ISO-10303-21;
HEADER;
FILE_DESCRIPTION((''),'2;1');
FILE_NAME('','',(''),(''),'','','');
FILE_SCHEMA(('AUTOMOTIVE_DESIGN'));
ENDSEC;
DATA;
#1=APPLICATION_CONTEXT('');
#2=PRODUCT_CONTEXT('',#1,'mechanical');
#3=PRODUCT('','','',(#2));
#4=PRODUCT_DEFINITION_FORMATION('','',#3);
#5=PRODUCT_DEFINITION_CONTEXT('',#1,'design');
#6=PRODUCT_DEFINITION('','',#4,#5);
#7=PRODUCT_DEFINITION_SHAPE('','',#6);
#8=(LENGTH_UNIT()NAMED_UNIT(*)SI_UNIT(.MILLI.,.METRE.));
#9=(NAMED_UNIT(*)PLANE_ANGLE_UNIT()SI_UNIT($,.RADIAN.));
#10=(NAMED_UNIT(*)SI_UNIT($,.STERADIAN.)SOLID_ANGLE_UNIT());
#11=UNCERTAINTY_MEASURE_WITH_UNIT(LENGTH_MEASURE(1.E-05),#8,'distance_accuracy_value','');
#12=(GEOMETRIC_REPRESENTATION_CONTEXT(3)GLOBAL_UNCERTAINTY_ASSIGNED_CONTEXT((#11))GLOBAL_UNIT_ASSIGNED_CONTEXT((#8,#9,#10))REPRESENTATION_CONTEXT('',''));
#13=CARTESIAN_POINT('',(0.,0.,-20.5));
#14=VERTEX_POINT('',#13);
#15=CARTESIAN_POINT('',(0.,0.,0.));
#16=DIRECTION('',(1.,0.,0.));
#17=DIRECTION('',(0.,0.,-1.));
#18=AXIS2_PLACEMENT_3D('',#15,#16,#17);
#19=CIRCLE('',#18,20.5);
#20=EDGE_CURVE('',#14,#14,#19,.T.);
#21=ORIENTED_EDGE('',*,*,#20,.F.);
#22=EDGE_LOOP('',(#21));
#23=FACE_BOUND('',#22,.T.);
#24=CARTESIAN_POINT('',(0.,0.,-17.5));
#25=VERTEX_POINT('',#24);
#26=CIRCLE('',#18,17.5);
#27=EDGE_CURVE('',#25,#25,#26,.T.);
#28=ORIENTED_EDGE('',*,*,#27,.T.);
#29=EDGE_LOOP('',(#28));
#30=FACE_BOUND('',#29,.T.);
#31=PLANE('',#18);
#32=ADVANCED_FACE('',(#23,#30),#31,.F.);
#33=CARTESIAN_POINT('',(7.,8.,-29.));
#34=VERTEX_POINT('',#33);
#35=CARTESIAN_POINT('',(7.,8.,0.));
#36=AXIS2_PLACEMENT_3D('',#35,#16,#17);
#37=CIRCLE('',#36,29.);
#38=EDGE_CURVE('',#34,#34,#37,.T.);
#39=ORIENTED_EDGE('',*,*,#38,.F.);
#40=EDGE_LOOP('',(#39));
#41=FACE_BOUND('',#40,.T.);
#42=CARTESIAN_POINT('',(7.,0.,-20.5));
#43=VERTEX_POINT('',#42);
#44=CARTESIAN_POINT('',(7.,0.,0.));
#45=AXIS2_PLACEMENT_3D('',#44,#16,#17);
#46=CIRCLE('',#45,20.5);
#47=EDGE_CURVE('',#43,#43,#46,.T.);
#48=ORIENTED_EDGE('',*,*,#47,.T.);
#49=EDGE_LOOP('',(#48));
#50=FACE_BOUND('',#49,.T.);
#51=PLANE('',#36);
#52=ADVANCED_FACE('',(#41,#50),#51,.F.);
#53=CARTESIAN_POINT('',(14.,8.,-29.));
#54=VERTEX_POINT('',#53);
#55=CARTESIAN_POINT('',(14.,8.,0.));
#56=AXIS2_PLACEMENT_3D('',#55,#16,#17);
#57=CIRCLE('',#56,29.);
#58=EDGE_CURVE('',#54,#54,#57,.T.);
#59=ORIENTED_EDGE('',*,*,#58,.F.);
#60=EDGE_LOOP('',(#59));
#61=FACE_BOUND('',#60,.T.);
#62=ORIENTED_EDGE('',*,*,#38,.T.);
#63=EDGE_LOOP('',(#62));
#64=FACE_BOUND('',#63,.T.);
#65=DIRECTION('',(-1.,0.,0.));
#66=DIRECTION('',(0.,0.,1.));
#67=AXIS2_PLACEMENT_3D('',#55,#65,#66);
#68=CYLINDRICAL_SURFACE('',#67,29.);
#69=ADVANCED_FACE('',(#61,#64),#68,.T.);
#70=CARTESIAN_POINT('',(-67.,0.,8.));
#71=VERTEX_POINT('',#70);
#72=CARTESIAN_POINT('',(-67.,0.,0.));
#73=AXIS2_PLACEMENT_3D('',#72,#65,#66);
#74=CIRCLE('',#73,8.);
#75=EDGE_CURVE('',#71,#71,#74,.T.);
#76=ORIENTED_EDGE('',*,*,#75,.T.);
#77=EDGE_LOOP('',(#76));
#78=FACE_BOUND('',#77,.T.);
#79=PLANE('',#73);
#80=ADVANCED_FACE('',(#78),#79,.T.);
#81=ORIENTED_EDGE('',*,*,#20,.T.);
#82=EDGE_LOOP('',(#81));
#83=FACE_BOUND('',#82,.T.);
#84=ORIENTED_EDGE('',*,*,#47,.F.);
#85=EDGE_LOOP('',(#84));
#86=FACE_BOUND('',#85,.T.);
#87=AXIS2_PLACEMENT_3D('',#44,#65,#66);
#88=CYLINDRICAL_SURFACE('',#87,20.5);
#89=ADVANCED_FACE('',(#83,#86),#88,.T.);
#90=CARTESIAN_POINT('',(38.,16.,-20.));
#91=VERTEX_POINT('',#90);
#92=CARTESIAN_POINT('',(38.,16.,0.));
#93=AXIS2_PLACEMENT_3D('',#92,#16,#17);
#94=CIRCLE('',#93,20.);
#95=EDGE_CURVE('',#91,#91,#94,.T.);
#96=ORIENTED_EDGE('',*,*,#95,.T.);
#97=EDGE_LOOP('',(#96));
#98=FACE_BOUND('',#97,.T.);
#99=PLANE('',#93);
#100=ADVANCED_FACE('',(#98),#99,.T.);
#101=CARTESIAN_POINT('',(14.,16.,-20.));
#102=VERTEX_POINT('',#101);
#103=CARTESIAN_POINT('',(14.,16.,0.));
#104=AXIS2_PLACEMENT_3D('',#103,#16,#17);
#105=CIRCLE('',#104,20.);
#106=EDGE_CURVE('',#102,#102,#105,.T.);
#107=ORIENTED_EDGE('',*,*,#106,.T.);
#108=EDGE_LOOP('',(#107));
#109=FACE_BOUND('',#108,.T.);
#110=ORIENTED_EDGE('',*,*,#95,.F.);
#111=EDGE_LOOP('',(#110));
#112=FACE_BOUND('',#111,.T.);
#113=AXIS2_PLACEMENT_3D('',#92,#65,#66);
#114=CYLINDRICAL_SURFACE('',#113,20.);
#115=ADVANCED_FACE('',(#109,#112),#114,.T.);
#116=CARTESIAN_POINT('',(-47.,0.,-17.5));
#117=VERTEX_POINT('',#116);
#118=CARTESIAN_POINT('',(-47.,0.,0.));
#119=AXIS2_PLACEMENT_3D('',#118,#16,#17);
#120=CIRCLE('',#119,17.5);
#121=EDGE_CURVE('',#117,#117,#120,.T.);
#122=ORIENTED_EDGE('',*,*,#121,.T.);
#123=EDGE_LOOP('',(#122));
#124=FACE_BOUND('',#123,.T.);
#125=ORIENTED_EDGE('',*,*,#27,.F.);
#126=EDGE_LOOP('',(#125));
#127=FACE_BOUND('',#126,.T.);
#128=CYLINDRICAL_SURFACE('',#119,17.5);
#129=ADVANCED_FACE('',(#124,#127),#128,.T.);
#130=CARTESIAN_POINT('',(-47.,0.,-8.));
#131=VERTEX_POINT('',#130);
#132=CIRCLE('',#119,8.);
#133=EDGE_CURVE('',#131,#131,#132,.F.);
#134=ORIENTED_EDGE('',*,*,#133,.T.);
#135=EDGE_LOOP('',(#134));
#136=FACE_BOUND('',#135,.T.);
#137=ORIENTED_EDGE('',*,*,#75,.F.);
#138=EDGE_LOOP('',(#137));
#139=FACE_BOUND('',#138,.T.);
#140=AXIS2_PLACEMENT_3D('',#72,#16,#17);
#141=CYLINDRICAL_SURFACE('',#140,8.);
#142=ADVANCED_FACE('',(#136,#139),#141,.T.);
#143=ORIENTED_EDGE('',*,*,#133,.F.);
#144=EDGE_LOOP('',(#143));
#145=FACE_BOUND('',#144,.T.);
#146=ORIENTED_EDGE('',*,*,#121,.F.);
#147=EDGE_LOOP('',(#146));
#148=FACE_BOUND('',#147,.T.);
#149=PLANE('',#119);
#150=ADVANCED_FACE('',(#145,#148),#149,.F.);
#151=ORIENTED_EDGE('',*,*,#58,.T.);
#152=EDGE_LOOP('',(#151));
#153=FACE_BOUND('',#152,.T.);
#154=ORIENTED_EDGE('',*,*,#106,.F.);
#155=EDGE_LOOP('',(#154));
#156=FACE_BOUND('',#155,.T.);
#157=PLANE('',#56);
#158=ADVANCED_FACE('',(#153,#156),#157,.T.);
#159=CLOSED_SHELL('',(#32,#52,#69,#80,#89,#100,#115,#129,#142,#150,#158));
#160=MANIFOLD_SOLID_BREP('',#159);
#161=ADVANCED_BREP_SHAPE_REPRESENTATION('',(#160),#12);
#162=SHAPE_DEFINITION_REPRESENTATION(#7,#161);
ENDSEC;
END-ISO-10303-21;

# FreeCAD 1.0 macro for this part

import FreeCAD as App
import Part
import Sketcher

doc = App.newDocument("Part")
params = doc.addObject("Spreadsheet::Sheet", "Params")
for row, (alias, value) in enumerate([
    ("sketch1_diameter", "35 mm"),
    ("pad1_length", "47 mm"),
    ("sketch2_diameter", "16 mm"),
    ("pad2_length", "20 mm"),
    ("sketch3_diameter", "41 mm"),
    ("pad3_length", "7 mm"),
    ("sketch4_diameter", "58 mm"),
    ("pad4_length", "7 mm"),
    ("sketch5_diameter", "40 mm"),
    ("pad5_length", "24 mm"),
], start=1):
    params.set(f"A{row}", alias)
    params.set(f"B{row}", "=" + value)
    params.setAlias(f"B{row}", alias)

body = doc.addObject("PartDesign::Body", "Body")

# Sketch on YZ plane
sketch1 = body.newObject("Sketcher::SketchObject", "Sketch")
sketch1.AttachmentSupport = (doc.getObject("YZ_Plane"), [""])
sketch1.MapMode = "FlatFace"
sketch1.addGeometry(Part.Circle(App.Vector(0, 0, 0), App.Vector(0, 0, 1), 18), False)
sketch1.addConstraint(Sketcher.Constraint("Coincident", 0, 3, -1, 1))
sketch1.addConstraint(Sketcher.Constraint("Diameter", 0, 35.0))
sketch1.setExpression("Constraints[1]", "Params.sketch1_diameter")
pad1 = body.newObject("PartDesign::Pad", "Pad")
pad1.Profile = sketch1
pad1.setExpression("Length", "Params.pad1_length")
pad1.Reversed = True

# Sketch on YZ plane
sketch2 = body.newObject("Sketcher::SketchObject", "Sketch001")
sketch2.AttachmentSupport = (doc.getObject("YZ_Plane"), [""])
sketch2.MapMode = "FlatFace"
sketch2.AttachmentOffset = App.Placement(App.Vector(0, 0, -47), App.Rotation())
sketch2.addGeometry(Part.Circle(App.Vector(0, 0, 0), App.Vector(0, 0, 1), 8), False)
sketch2.addConstraint(Sketcher.Constraint("Coincident", 0, 3, -1, 1))
sketch2.addConstraint(Sketcher.Constraint("Diameter", 0, 16.0))
sketch2.setExpression("Constraints[1]", "Params.sketch2_diameter")
pad2 = body.newObject("PartDesign::Pad", "Pad001")
pad2.Profile = sketch2
pad2.setExpression("Length", "Params.pad2_length")
pad2.Reversed = True

# Sketch on YZ plane
sketch3 = body.newObject("Sketcher::SketchObject", "Sketch002")
sketch3.AttachmentSupport = (doc.getObject("YZ_Plane"), [""])
sketch3.MapMode = "FlatFace"
sketch3.addGeometry(Part.Circle(App.Vector(0, 0, 0), App.Vector(0, 0, 1), 20), False)
sketch3.addConstraint(Sketcher.Constraint("Coincident", 0, 3, -1, 1))
sketch3.addConstraint(Sketcher.Constraint("Diameter", 0, 41.0))
sketch3.setExpression("Constraints[1]", "Params.sketch3_diameter")
pad3 = body.newObject("PartDesign::Pad", "Pad002")
pad3.Profile = sketch3
pad3.setExpression("Length", "Params.pad3_length")

# Sketch on YZ plane
sketch4 = body.newObject("Sketcher::SketchObject", "Sketch003")
sketch4.AttachmentSupport = (doc.getObject("YZ_Plane"), [""])
sketch4.MapMode = "FlatFace"
sketch4.AttachmentOffset = App.Placement(App.Vector(0, 0, 7), App.Rotation())
sketch4.addGeometry(Part.Circle(App.Vector(8, 0, 0), App.Vector(0, 0, 1), 29), False)
sketch4.addConstraint(Sketcher.Constraint("PointOnObject", 0, 3, -1))
sketch4.addConstraint(Sketcher.Constraint("Diameter", 0, 58.0))
sketch4.addConstraint(Sketcher.Constraint("DistanceX", -1, 1, 0, 3, 8.0))
sketch4.setExpression("Constraints[1]", "Params.sketch4_diameter")
pad4 = body.newObject("PartDesign::Pad", "Pad003")
pad4.Profile = sketch4
pad4.setExpression("Length", "Params.pad4_length")

# Sketch on YZ plane
sketch5 = body.newObject("Sketcher::SketchObject", "Sketch004")
sketch5.AttachmentSupport = (doc.getObject("YZ_Plane"), [""])
sketch5.MapMode = "FlatFace"
sketch5.AttachmentOffset = App.Placement(App.Vector(0, 0, 14), App.Rotation())
sketch5.addGeometry(Part.Circle(App.Vector(16, 0, 0), App.Vector(0, 0, 1), 20), False)
sketch5.addConstraint(Sketcher.Constraint("PointOnObject", 0, 3, -1))
sketch5.addConstraint(Sketcher.Constraint("Diameter", 0, 40.0))
sketch5.addConstraint(Sketcher.Constraint("DistanceX", -1, 1, 0, 3, 16.0))
sketch5.setExpression("Constraints[1]", "Params.sketch5_diameter")
pad5 = body.newObject("PartDesign::Pad", "Pad004")
pad5.Profile = sketch5
pad5.setExpression("Length", "Params.pad5_length")

doc.recompute()
